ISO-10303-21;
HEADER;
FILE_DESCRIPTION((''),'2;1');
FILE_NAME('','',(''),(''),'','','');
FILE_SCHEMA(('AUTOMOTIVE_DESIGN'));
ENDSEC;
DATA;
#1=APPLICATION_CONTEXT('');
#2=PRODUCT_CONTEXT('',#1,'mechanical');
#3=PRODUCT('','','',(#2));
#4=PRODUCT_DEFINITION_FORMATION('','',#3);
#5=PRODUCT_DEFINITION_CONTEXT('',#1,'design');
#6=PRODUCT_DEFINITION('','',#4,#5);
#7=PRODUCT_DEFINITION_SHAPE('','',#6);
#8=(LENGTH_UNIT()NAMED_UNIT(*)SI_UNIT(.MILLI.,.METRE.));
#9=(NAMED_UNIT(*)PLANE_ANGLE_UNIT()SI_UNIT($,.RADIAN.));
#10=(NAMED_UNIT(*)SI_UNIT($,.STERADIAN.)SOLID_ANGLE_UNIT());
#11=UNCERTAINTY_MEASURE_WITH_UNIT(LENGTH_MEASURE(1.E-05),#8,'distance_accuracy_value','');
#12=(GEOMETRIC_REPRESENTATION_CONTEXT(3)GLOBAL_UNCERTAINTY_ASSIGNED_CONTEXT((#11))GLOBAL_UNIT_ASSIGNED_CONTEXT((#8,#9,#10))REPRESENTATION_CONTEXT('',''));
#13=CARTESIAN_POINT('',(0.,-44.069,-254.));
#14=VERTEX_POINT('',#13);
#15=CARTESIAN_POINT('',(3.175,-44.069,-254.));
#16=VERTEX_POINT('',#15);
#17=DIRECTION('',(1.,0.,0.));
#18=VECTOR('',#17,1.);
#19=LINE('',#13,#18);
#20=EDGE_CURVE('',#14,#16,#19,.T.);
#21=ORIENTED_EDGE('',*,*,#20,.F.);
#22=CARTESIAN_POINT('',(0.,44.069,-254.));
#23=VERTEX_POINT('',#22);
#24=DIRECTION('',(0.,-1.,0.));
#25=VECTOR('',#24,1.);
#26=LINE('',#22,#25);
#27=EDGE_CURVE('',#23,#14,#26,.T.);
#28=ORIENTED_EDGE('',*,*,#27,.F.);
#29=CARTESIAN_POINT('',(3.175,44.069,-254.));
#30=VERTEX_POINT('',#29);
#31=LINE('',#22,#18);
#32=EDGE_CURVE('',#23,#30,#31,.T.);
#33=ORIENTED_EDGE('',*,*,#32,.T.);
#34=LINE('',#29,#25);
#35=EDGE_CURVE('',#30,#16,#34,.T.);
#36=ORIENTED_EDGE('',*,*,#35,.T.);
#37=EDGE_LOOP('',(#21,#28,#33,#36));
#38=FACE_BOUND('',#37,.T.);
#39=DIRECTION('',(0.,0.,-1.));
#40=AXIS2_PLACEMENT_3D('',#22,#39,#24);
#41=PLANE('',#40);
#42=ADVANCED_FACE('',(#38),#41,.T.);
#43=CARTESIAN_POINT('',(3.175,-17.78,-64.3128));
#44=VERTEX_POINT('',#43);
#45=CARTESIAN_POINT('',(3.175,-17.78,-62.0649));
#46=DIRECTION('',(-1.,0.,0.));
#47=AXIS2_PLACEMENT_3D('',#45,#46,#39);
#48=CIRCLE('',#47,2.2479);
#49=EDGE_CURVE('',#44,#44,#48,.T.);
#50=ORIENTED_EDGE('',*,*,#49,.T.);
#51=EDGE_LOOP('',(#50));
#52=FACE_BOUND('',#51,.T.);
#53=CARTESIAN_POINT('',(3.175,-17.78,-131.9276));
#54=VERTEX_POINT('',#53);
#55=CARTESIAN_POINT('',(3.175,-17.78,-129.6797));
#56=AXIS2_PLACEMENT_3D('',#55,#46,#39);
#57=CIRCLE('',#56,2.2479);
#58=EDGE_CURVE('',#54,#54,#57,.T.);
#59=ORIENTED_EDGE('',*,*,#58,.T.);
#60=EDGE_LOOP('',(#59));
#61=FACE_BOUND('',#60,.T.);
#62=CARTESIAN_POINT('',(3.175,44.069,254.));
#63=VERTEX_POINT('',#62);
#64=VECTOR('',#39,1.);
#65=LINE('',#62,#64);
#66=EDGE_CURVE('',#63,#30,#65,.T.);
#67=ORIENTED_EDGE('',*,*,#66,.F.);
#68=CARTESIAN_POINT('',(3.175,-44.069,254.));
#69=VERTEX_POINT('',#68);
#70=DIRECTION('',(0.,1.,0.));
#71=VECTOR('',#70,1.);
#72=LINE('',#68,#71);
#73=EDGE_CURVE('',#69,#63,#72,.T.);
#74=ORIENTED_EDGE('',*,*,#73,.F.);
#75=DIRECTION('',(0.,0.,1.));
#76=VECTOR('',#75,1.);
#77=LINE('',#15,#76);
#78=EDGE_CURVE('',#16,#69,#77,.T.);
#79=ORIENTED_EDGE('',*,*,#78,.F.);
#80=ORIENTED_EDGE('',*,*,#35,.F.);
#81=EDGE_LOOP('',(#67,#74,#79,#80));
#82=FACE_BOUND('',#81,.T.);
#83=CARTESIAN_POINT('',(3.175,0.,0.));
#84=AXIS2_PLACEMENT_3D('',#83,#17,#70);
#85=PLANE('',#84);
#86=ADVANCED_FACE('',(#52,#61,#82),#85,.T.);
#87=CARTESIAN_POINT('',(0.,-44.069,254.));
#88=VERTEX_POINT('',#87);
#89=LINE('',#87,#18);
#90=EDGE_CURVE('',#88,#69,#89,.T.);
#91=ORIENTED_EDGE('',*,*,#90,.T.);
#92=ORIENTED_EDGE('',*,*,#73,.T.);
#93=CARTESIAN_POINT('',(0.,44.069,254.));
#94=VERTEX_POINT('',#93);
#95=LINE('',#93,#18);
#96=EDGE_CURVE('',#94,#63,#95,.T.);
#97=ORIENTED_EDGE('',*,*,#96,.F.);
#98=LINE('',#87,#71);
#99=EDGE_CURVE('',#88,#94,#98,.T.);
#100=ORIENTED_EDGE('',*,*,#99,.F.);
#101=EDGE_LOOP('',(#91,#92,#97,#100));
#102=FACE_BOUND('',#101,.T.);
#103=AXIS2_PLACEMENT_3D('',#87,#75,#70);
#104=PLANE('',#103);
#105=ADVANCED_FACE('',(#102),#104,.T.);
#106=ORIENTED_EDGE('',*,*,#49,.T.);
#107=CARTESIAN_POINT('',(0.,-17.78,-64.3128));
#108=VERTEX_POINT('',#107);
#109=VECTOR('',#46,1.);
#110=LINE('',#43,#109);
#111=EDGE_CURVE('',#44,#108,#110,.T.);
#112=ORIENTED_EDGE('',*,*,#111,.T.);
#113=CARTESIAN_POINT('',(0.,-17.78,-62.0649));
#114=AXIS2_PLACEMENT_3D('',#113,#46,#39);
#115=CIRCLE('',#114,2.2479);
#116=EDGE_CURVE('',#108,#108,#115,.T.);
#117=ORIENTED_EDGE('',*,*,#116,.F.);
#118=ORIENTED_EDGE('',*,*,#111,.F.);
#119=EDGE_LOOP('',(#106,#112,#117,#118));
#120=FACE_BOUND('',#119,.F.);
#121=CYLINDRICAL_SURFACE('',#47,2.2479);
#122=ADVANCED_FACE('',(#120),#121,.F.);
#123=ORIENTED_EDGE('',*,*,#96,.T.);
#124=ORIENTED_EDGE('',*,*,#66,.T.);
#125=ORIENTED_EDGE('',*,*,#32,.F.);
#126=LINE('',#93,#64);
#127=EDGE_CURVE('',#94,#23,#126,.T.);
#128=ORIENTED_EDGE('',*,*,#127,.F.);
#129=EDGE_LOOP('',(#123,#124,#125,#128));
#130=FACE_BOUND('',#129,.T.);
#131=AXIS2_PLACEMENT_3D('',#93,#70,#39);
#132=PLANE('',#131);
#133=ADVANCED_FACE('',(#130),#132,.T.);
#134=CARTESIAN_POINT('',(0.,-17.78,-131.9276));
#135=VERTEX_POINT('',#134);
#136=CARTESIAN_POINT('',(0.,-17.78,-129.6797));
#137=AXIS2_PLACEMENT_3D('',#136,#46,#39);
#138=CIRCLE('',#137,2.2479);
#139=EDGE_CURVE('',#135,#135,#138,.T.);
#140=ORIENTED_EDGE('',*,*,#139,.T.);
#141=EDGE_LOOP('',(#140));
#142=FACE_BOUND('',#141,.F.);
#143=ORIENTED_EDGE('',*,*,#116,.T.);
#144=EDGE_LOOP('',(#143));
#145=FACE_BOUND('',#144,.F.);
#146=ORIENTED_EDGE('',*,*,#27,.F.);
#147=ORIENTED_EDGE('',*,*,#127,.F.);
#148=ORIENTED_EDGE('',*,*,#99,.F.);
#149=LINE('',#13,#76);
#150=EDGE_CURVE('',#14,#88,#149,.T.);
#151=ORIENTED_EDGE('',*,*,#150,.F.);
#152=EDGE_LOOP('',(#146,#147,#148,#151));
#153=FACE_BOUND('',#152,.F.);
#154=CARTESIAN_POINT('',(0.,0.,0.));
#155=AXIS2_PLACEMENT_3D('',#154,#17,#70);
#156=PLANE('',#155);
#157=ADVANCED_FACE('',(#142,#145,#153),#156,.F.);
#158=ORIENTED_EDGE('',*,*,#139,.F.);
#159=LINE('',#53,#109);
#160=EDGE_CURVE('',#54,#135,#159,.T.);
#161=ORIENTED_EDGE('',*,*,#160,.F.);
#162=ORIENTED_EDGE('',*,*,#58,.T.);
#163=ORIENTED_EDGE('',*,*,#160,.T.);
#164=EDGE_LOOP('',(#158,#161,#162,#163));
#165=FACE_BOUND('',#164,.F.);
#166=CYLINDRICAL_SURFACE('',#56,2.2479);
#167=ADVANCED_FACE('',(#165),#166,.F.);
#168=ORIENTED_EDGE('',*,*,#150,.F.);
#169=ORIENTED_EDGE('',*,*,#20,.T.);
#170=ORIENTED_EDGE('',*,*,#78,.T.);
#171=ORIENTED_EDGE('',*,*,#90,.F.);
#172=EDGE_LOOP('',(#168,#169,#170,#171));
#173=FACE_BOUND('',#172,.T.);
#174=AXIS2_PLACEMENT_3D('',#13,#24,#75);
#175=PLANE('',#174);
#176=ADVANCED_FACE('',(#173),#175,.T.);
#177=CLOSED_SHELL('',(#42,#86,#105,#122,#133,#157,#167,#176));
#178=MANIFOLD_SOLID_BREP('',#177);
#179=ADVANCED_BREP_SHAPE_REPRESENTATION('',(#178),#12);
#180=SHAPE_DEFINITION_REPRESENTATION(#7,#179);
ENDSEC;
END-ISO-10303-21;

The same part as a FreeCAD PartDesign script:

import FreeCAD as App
import Part
import Sketcher
from FreeCAD import Vector
Q = App.Units.Quantity

doc = App.newDocument("Part")
params = doc.addObject("Spreadsheet::Sheet", "Params")
for row, (alias, value) in enumerate([
    ("sketch1_height", "20 in"),
    ("sketch1_width", "3.47 in"),
    ("pad1_length", "0.125 in"),
    ("sketch2_diameter", "0.177 in"),
    ("hole_diameter", "0.177 in"),
], start=1):
    params.set(f"A{row}", alias)
    params.set(f"B{row}", "=" + value)
    params.setAlias(f"B{row}", alias)

body = doc.addObject("PartDesign::Body", "Body")

# Sketch on YZ plane
sketch1 = body.newObject("Sketcher::SketchObject", "Sketch")
sketch1.AttachmentSupport = (doc.getObject("YZ_Plane"), [""])
sketch1.MapMode = "FlatFace"
sketch1.addGeometry([
    Part.LineSegment(Vector(44.069, 254, 0), Vector(-44.069, 254, 0)),
    Part.LineSegment(Vector(-44.069, 254, 0), Vector(-44.069, -254, 0)),
    Part.LineSegment(Vector(-44.069, -254, 0), Vector(44.069, -254, 0)),
    Part.LineSegment(Vector(44.069, -254, 0), Vector(44.069, 254, 0)),
], False)
sketch1.addConstraint([
    Sketcher.Constraint("Coincident", 0, 2, 1, 1),
    Sketcher.Constraint("Coincident", 1, 2, 2, 1),
    Sketcher.Constraint("Coincident", 2, 2, 3, 1),
    Sketcher.Constraint("Coincident", 3, 2, 0, 1),
    Sketcher.Constraint("Horizontal", 0),
    Sketcher.Constraint("Vertical", 1),
    Sketcher.Constraint("Horizontal", 2),
    Sketcher.Constraint("Vertical", 3),
    Sketcher.Constraint("Symmetric", 0, 2, 2, 2, -1, 1),
    Sketcher.Constraint("DistanceY", 1, 2, 1, 1, Q("20 in")),
    Sketcher.Constraint("DistanceX", 0, 2, 0, 1, Q("3.47 in")),
])
sketch1.setExpression("Constraints[9]", "Params.sketch1_height")
sketch1.setExpression("Constraints[10]", "Params.sketch1_width")
pad1 = body.newObject("PartDesign::Pad", "Pad")
pad1.Profile = sketch1
pad1.setExpression("Length", "Params.pad1_length")

# Sketch on YZ plane
sketch2 = body.newObject("Sketcher::SketchObject", "Sketch001")
sketch2.AttachmentSupport = (doc.getObject("YZ_Plane"), [""])
sketch2.MapMode = "FlatFace"
sketch2.AttachmentOffset = App.Placement(Vector(0, 0, 0.125 * 25.4), App.Rotation())
sketch2.addGeometry([
    Part.Circle(Vector(-17.78, -62.0649, 0), Vector(0, 0, 1), 2.2479),
    Part.Circle(Vector(-17.78, -129.6797, 0), Vector(0, 0, 1), 2.2479),
], False)
sketch2.addConstraint([
    Sketcher.Constraint("Equal", 0, 1),
    Sketcher.Constraint("Vertical", 0, 3, 1, 3),
    Sketcher.Constraint("Diameter", 0, Q("0.177 in")),
    Sketcher.Constraint("DistanceX", 0, 3, -1, 1, Q("0.7 in")),
    Sketcher.Constraint("DistanceY", 1, 3, 0, 3, Q("2.662 in")),
    Sketcher.Constraint("DistanceY", 0, 3, -1, 1, Q("2.4435 in")),
])
sketch2.setExpression("Constraints[2]", "Params.sketch2_diameter")
doc.recompute()
hole = body.newObject("PartDesign::Hole", "Hole")
hole.Profile = sketch2
hole.ThreadType = "None"
hole.setExpression("Diameter", "Params.hole_diameter")
hole.DepthType = "ThroughAll"

doc.recompute()
